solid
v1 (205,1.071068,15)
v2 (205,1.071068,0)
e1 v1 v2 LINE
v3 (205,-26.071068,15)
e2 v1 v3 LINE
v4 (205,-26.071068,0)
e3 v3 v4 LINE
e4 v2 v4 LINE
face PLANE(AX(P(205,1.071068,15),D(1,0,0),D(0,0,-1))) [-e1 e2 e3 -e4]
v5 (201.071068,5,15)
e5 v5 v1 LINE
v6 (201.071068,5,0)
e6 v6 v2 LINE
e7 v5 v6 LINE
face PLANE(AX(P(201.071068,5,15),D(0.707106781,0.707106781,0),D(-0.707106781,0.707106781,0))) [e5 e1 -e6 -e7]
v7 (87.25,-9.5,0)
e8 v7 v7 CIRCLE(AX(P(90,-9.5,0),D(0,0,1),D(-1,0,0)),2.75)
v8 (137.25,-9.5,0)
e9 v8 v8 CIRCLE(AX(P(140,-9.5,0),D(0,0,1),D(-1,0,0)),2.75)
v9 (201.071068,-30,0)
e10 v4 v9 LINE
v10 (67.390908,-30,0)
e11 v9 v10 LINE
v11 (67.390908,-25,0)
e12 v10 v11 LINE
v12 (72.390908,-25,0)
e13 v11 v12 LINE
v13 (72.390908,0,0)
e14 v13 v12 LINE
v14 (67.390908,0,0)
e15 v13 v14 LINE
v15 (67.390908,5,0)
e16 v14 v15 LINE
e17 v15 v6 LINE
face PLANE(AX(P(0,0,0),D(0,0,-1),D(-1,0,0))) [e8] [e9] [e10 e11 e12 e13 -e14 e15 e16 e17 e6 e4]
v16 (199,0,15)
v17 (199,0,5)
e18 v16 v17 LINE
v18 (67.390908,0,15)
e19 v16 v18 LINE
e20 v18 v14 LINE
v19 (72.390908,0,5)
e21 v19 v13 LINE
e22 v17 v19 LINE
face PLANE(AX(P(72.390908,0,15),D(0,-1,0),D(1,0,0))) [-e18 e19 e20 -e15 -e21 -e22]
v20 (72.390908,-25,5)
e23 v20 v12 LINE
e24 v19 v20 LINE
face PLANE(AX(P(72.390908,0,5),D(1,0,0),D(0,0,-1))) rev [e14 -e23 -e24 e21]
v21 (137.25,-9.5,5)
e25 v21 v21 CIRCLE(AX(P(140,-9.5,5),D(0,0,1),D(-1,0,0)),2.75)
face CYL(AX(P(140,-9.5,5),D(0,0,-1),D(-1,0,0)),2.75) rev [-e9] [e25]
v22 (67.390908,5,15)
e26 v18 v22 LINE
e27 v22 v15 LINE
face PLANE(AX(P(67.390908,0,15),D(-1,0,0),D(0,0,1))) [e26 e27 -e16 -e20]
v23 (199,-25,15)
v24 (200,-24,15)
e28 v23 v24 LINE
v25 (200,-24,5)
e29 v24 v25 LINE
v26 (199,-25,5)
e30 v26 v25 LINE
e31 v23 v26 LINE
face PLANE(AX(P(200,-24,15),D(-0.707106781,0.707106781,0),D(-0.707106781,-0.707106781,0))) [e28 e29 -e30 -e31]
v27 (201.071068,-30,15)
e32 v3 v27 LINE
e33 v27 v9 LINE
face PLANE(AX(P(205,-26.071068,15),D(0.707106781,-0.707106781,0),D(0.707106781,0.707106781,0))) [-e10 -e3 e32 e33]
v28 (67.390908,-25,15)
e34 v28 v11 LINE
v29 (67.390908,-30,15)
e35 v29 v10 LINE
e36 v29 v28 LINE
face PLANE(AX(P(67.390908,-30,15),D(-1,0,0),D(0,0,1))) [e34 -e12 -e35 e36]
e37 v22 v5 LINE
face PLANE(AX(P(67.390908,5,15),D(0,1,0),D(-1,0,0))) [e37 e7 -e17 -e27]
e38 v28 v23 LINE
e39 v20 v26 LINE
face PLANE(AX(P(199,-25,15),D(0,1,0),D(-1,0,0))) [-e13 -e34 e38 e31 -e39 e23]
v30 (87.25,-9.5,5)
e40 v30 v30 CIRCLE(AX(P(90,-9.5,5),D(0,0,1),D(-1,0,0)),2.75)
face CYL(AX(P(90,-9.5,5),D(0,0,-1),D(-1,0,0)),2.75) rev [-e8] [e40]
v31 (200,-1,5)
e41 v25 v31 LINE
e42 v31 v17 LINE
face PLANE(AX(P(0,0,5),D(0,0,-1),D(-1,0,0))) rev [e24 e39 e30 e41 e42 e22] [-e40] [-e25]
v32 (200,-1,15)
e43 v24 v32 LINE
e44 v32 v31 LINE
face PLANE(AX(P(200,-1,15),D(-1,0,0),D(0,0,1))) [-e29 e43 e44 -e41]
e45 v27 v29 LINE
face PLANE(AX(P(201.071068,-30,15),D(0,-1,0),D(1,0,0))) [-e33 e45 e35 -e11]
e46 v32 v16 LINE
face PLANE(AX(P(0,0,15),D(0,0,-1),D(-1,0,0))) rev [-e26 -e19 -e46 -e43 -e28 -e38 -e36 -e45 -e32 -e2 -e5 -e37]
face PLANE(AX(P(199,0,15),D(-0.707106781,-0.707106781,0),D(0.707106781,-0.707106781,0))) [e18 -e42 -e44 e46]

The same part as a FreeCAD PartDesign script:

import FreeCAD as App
import Part
import Sketcher
Q = App.Units.Quantity


def add_polygon(sketch, points):
    """Adds a closed chain of lines whose ends are joined by coincident constraints."""
    first, n = sketch.GeometryCount, len(points)
    for a, b in zip(points, points[1:] + points[:1]):
        sketch.addGeometry(Part.LineSegment(App.Vector(*a, 0), App.Vector(*b, 0)), False)
    for i in range(n):
        sketch.addConstraint(Sketcher.Constraint("Coincident", first + i, 2, first + (i + 1) % n, 1))

doc = App.newDocument("Part")
body = doc.addObject("PartDesign::Body", "Body")

# Sketch on XY plane
sketch1 = body.newObject("Sketcher::SketchObject", "Sketch")
sketch1.AttachmentSupport = (doc.getObject("XY_Plane"), [""])
sketch1.MapMode = "FlatFace"
add_polygon(sketch1, [(72.4, 0), (72.4, -25), (199, -25), (200, -24), (200, -1), (199, 0)])  # lines 0-5
sketch1.addGeometry(Part.Circle(App.Vector(90, -9.5, 0), App.Vector(0, 0, 1), 2.8), False)  # 6
sketch1.addGeometry(Part.Circle(App.Vector(140, -9.5, 0), App.Vector(0, 0, 1), 2.8), False)  # 7
sketch1.addConstraint(Sketcher.Constraint("Vertical", 0))
sketch1.addConstraint(Sketcher.Constraint("Horizontal", 1))
sketch1.addConstraint(Sketcher.Constraint("Vertical", 3))
sketch1.addConstraint(Sketcher.Constraint("Horizontal", 5))
sketch1.addConstraint(Sketcher.Constraint("Equal", 6, 7))
sketch1.addConstraint(Sketcher.Constraint("PointOnObject", 4, 2, -1))
sketch1.addConstraint(Sketcher.Constraint("Perpendicular", 2, 4))
sketch1.addConstraint(Sketcher.Constraint("Horizontal", 6, 3, 7, 3))
sketch1.addConstraint(Sketcher.Constraint("Vertical", 1, 2, 4, 2))
sketch1.addConstraint(Sketcher.Constraint("Equal", 2, 4))
sketch1.addConstraint(Sketcher.Constraint("Diameter", 6, Q("5.5 mm")))
sketch1.addConstraint(Sketcher.Constraint("DistanceY", 0, 2, 0, 1, Q("25 mm")))
sketch1.addConstraint(Sketcher.Constraint("DistanceY", 3, 1, 3, 2, Q("23 mm")))
sketch1.addConstraint(Sketcher.Constraint("DistanceX", -1, 1, 6, 3, Q("90 mm")))
sketch1.addConstraint(Sketcher.Constraint("DistanceX", -1, 1, 7, 3, Q("140 mm")))
sketch1.addConstraint(Sketcher.Constraint("DistanceX", -1, 1, 1, 2, Q("199 mm")))
sketch1.addConstraint(Sketcher.Constraint("DistanceY", 6, 3, -1, 1, Q("9.5 mm")))
sketch1.addConstraint(Sketcher.Constraint("DistanceX", 1, 1, 1, 2, Q("126.609092 mm")))
pad1 = body.newObject("PartDesign::Pad", "Pad")
pad1.Profile = sketch1
pad1.Length = 5

# Sketch on XY plane
sketch2 = body.newObject("Sketcher::SketchObject", "Sketch001")
sketch2.AttachmentSupport = (doc.getObject("XY_Plane"), [""])
sketch2.MapMode = "FlatFace"
add_polygon(sketch2, [(199, 0), (67.4, 0), (67.4, 5), (201.1, 5), (205, 1.1), (205, -26.1), (201.1, -30), (67.4, -30), (67.4, -25), (199, -25), (200, -24), (200, -1)])  # lines 0-11
sketch2.addConstraint(Sketcher.Constraint("Horizontal", 0))
sketch2.addConstraint(Sketcher.Constraint("Vertical", 1))
sketch2.addConstraint(Sketcher.Constraint("Horizontal", 2))
sketch2.addConstraint(Sketcher.Constraint("Vertical", 4))
sketch2.addConstraint(Sketcher.Constraint("Horizontal", 6))
sketch2.addConstraint(Sketcher.Constraint("Vertical", 7))
sketch2.addConstraint(Sketcher.Constraint("Horizontal", 8))
sketch2.addConstraint(Sketcher.Constraint("Vertical", 10))
sketch2.addConstraint(Sketcher.Constraint("PointOnObject", 0, 2, -1))
sketch2.addConstraint(Sketcher.Constraint("Perpendicular", 3, 5))
sketch2.addConstraint(Sketcher.Constraint("Parallel", 5, 9))
sketch2.addConstraint(Sketcher.Constraint("Perpendicular", 9, 11))
sketch2.addConstraint(Sketcher.Constraint("Vertical", 2, 2, 5, 2))
sketch2.addConstraint(Sketcher.Constraint("Vertical", 1, 2, 6, 2))
sketch2.addConstraint(Sketcher.Constraint("Vertical", 8, 2, 11, 2))
sketch2.addConstraint(Sketcher.Constraint("Equal", 1, 7))
sketch2.addConstraint(Sketcher.Constraint("Equal", 3, 5))
sketch2.addConstraint(Sketcher.Constraint("DistanceY", 1, 1, 1, 2, Q("5 mm")))
sketch2.addConstraint(Sketcher.Constraint("DistanceY", 10, 1, 10, 2, Q("23 mm")))
sketch2.addConstraint(Sketcher.Constraint("DistanceX", -1, 1, 3, 2, Q("205 mm")))
sketch2.addConstraint(Sketcher.Constraint("DistanceY", 5, 2, -1, 1, Q("30 mm")))
sketch2.addConstraint(Sketcher.Constraint("DistanceX", -1, 1, 8, 2, Q("199 mm")))
sketch2.addConstraint(Sketcher.Constraint("DistanceX", 0, 2, 0, 1, Q("131.609092 mm")))
sketch2.addConstraint(Sketcher.Constraint("DistanceX", 2, 1, 2, 2, Q("133.68016 mm")))
pad2 = body.newObject("PartDesign::Pad", "Pad001")
pad2.Profile = sketch2
pad2.Length = 15

doc.recompute()
